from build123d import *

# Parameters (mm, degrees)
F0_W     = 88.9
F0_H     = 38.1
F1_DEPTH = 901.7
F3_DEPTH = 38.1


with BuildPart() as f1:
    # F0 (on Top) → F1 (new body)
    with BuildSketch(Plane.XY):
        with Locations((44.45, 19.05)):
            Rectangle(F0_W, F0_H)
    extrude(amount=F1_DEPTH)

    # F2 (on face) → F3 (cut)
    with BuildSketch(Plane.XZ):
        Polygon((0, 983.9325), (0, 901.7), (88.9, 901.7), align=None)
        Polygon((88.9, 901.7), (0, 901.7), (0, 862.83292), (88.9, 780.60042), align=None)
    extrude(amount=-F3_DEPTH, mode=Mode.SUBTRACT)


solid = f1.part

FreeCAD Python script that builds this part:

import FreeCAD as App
import Part
import Sketcher
Q = App.Units.Quantity


def add_polygon(sketch, points):
    """Adds a closed chain of lines whose ends are joined by coincident constraints."""
    first, n = sketch.GeometryCount, len(points)
    for a, b in zip(points, points[1:] + points[:1]):
        sketch.addGeometry(Part.LineSegment(App.Vector(*a, 0), App.Vector(*b, 0)), False)
    for i in range(n):
        sketch.addConstraint(Sketcher.Constraint("Coincident", first + i, 2, first + (i + 1) % n, 1))

doc = App.newDocument("Part")
body = doc.addObject("PartDesign::Body", "Body")

sketch1 = body.newObject("Sketcher::SketchObject", "Sketch")
sketch1.AttachmentSupport = (doc.getObject("XY_Plane"), [""])
sketch1.MapMode = "FlatFace"
add_polygon(sketch1, [(0, 38.1), (0, 0), (88.9, 0), (88.9, 38.1)])
sketch1.addConstraint([
    Sketcher.Constraint("Vertical", 0),
    Sketcher.Constraint("Horizontal", 1),
    Sketcher.Constraint("Vertical", 2),
    Sketcher.Constraint("Horizontal", 3),
    Sketcher.Constraint("Coincident", 0, 2, -1, 1),
    Sketcher.Constraint("DistanceX", 1, 1, 1, 2, Q("3.5 in")),
    Sketcher.Constraint("DistanceY", 0, 2, 0, 1, Q("1.5 in")),
])
pad1 = body.newObject("PartDesign::Pad", "Pad")
pad1.Profile = sketch1
pad1.Length = Q("35.5 in")

sketch2 = body.newObject("Sketcher::SketchObject", "Sketch001")
sketch2.AttachmentSupport = (doc.getObject("XZ_Plane"), [""])
sketch2.MapMode = "FlatFace"
add_polygon(sketch2, [(0, 983.9325), (0, 862.83292), (88.9, 780.60042), (88.9, 901.7)])
sketch2.addConstraint([
    Sketcher.Constraint("Vertical", 0),
    Sketcher.Constraint("Vertical", 2),
    Sketcher.Constraint("PointOnObject", 0, 2, -2),
    Sketcher.Constraint("Parallel", 1, 3),
    Sketcher.Constraint("DistanceX", -1, 1, 1, 2, Q("3.5 in")),
    Sketcher.Constraint("DistanceY", -1, 1, 2, 2, Q("35.5 in")),
    Sketcher.Constraint("DistanceY", 0, 2, 0, 1, Q("4.7677 in")),
    Sketcher.Constraint("DistanceY", -1, 1, 0, 2, Q("33.9698 in")),
])
pocket1 = body.newObject("PartDesign::Pocket", "Pocket")
pocket1.Profile = sketch2
pocket1.Length = Q("1.5 in")

doc.recompute()
